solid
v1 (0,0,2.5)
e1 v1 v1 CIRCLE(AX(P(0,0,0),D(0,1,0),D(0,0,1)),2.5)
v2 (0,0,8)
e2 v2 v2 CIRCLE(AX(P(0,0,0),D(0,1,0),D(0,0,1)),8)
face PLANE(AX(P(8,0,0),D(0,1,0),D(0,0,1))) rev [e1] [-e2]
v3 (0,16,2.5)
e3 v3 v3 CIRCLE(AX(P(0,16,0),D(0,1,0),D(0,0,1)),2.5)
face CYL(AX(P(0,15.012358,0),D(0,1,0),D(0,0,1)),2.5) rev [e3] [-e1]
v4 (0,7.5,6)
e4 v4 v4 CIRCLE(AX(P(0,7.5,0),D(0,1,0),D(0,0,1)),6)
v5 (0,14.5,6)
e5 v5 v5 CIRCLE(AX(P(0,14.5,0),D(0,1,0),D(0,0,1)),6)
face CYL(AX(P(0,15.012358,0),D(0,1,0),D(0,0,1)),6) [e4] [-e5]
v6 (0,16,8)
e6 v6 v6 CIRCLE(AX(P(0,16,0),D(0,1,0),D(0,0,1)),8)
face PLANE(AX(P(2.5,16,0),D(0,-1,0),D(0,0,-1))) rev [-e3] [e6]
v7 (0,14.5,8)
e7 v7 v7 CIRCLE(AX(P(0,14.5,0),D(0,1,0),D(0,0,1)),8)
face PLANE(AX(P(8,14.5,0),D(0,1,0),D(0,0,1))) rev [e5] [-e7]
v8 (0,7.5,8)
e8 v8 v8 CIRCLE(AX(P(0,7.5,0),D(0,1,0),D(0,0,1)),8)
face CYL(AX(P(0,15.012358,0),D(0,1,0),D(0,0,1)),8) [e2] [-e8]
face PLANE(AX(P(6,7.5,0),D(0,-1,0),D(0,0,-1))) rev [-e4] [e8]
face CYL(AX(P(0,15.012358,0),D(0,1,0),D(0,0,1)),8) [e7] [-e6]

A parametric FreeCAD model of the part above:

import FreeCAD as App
import Part
import Sketcher
from FreeCAD import Vector


def add_polygon(sketch, points):
    """Adds a closed chain of lines whose ends are joined by coincident constraints."""
    first, n = sketch.GeometryCount, len(points)
    for a, b in zip(points, points[1:] + points[:1]):
        sketch.addGeometry(Part.LineSegment(App.Vector(*a, 0), App.Vector(*b, 0)), False)
    for i in range(n):
        sketch.addConstraint(Sketcher.Constraint("Coincident", first + i, 2, first + (i + 1) % n, 1))

doc = App.newDocument("Part")
body = doc.addObject("PartDesign::Body", "Body")

sketch1 = body.newObject("Sketcher::SketchObject", "Sketch")
sketch1.AttachmentSupport = (doc.getObject("XY_Plane"), [""])
sketch1.MapMode = "FlatFace"
add_polygon(sketch1, [(8, 16), (2.5, 16), (2.5, 0), (8, 0), (8, 7.5), (6, 7.5), (6, 14.5), (8, 14.5)])
sketch1.addConstraint([
    Sketcher.Constraint("Horizontal", 0),
    Sketcher.Constraint("Vertical", 1),
    Sketcher.Constraint("Horizontal", 2),
    Sketcher.Constraint("Vertical", 3),
    Sketcher.Constraint("Horizontal", 4),
    Sketcher.Constraint("Vertical", 5),
    Sketcher.Constraint("Horizontal", 6),
    Sketcher.Constraint("Vertical", 7),
    Sketcher.Constraint("PointOnObject", 1, 2, -1),
    Sketcher.Constraint("Vertical", 3, 2, 6, 2),
    Sketcher.Constraint("DistanceX", 4, 2, 4, 1, 2.0),
    Sketcher.Constraint("DistanceY", 1, 2, 1, 1, 16.0),
    Sketcher.Constraint("DistanceY", 5, 1, 5, 2, 7.0),
    Sketcher.Constraint("DistanceX", 0, 2, 0, 1, 5.5),
    Sketcher.Constraint("DistanceY", 3, 1, 3, 2, 7.5),
    Sketcher.Constraint("DistanceX", -1, 1, 2, 2, 8.0),
])
revolution = body.newObject("PartDesign::Revolution", "Revolution")
revolution.Profile = sketch1
revolution.ReferenceAxis = (sketch1, ["V_Axis"])
revolution.Angle = 360

doc.recompute()
